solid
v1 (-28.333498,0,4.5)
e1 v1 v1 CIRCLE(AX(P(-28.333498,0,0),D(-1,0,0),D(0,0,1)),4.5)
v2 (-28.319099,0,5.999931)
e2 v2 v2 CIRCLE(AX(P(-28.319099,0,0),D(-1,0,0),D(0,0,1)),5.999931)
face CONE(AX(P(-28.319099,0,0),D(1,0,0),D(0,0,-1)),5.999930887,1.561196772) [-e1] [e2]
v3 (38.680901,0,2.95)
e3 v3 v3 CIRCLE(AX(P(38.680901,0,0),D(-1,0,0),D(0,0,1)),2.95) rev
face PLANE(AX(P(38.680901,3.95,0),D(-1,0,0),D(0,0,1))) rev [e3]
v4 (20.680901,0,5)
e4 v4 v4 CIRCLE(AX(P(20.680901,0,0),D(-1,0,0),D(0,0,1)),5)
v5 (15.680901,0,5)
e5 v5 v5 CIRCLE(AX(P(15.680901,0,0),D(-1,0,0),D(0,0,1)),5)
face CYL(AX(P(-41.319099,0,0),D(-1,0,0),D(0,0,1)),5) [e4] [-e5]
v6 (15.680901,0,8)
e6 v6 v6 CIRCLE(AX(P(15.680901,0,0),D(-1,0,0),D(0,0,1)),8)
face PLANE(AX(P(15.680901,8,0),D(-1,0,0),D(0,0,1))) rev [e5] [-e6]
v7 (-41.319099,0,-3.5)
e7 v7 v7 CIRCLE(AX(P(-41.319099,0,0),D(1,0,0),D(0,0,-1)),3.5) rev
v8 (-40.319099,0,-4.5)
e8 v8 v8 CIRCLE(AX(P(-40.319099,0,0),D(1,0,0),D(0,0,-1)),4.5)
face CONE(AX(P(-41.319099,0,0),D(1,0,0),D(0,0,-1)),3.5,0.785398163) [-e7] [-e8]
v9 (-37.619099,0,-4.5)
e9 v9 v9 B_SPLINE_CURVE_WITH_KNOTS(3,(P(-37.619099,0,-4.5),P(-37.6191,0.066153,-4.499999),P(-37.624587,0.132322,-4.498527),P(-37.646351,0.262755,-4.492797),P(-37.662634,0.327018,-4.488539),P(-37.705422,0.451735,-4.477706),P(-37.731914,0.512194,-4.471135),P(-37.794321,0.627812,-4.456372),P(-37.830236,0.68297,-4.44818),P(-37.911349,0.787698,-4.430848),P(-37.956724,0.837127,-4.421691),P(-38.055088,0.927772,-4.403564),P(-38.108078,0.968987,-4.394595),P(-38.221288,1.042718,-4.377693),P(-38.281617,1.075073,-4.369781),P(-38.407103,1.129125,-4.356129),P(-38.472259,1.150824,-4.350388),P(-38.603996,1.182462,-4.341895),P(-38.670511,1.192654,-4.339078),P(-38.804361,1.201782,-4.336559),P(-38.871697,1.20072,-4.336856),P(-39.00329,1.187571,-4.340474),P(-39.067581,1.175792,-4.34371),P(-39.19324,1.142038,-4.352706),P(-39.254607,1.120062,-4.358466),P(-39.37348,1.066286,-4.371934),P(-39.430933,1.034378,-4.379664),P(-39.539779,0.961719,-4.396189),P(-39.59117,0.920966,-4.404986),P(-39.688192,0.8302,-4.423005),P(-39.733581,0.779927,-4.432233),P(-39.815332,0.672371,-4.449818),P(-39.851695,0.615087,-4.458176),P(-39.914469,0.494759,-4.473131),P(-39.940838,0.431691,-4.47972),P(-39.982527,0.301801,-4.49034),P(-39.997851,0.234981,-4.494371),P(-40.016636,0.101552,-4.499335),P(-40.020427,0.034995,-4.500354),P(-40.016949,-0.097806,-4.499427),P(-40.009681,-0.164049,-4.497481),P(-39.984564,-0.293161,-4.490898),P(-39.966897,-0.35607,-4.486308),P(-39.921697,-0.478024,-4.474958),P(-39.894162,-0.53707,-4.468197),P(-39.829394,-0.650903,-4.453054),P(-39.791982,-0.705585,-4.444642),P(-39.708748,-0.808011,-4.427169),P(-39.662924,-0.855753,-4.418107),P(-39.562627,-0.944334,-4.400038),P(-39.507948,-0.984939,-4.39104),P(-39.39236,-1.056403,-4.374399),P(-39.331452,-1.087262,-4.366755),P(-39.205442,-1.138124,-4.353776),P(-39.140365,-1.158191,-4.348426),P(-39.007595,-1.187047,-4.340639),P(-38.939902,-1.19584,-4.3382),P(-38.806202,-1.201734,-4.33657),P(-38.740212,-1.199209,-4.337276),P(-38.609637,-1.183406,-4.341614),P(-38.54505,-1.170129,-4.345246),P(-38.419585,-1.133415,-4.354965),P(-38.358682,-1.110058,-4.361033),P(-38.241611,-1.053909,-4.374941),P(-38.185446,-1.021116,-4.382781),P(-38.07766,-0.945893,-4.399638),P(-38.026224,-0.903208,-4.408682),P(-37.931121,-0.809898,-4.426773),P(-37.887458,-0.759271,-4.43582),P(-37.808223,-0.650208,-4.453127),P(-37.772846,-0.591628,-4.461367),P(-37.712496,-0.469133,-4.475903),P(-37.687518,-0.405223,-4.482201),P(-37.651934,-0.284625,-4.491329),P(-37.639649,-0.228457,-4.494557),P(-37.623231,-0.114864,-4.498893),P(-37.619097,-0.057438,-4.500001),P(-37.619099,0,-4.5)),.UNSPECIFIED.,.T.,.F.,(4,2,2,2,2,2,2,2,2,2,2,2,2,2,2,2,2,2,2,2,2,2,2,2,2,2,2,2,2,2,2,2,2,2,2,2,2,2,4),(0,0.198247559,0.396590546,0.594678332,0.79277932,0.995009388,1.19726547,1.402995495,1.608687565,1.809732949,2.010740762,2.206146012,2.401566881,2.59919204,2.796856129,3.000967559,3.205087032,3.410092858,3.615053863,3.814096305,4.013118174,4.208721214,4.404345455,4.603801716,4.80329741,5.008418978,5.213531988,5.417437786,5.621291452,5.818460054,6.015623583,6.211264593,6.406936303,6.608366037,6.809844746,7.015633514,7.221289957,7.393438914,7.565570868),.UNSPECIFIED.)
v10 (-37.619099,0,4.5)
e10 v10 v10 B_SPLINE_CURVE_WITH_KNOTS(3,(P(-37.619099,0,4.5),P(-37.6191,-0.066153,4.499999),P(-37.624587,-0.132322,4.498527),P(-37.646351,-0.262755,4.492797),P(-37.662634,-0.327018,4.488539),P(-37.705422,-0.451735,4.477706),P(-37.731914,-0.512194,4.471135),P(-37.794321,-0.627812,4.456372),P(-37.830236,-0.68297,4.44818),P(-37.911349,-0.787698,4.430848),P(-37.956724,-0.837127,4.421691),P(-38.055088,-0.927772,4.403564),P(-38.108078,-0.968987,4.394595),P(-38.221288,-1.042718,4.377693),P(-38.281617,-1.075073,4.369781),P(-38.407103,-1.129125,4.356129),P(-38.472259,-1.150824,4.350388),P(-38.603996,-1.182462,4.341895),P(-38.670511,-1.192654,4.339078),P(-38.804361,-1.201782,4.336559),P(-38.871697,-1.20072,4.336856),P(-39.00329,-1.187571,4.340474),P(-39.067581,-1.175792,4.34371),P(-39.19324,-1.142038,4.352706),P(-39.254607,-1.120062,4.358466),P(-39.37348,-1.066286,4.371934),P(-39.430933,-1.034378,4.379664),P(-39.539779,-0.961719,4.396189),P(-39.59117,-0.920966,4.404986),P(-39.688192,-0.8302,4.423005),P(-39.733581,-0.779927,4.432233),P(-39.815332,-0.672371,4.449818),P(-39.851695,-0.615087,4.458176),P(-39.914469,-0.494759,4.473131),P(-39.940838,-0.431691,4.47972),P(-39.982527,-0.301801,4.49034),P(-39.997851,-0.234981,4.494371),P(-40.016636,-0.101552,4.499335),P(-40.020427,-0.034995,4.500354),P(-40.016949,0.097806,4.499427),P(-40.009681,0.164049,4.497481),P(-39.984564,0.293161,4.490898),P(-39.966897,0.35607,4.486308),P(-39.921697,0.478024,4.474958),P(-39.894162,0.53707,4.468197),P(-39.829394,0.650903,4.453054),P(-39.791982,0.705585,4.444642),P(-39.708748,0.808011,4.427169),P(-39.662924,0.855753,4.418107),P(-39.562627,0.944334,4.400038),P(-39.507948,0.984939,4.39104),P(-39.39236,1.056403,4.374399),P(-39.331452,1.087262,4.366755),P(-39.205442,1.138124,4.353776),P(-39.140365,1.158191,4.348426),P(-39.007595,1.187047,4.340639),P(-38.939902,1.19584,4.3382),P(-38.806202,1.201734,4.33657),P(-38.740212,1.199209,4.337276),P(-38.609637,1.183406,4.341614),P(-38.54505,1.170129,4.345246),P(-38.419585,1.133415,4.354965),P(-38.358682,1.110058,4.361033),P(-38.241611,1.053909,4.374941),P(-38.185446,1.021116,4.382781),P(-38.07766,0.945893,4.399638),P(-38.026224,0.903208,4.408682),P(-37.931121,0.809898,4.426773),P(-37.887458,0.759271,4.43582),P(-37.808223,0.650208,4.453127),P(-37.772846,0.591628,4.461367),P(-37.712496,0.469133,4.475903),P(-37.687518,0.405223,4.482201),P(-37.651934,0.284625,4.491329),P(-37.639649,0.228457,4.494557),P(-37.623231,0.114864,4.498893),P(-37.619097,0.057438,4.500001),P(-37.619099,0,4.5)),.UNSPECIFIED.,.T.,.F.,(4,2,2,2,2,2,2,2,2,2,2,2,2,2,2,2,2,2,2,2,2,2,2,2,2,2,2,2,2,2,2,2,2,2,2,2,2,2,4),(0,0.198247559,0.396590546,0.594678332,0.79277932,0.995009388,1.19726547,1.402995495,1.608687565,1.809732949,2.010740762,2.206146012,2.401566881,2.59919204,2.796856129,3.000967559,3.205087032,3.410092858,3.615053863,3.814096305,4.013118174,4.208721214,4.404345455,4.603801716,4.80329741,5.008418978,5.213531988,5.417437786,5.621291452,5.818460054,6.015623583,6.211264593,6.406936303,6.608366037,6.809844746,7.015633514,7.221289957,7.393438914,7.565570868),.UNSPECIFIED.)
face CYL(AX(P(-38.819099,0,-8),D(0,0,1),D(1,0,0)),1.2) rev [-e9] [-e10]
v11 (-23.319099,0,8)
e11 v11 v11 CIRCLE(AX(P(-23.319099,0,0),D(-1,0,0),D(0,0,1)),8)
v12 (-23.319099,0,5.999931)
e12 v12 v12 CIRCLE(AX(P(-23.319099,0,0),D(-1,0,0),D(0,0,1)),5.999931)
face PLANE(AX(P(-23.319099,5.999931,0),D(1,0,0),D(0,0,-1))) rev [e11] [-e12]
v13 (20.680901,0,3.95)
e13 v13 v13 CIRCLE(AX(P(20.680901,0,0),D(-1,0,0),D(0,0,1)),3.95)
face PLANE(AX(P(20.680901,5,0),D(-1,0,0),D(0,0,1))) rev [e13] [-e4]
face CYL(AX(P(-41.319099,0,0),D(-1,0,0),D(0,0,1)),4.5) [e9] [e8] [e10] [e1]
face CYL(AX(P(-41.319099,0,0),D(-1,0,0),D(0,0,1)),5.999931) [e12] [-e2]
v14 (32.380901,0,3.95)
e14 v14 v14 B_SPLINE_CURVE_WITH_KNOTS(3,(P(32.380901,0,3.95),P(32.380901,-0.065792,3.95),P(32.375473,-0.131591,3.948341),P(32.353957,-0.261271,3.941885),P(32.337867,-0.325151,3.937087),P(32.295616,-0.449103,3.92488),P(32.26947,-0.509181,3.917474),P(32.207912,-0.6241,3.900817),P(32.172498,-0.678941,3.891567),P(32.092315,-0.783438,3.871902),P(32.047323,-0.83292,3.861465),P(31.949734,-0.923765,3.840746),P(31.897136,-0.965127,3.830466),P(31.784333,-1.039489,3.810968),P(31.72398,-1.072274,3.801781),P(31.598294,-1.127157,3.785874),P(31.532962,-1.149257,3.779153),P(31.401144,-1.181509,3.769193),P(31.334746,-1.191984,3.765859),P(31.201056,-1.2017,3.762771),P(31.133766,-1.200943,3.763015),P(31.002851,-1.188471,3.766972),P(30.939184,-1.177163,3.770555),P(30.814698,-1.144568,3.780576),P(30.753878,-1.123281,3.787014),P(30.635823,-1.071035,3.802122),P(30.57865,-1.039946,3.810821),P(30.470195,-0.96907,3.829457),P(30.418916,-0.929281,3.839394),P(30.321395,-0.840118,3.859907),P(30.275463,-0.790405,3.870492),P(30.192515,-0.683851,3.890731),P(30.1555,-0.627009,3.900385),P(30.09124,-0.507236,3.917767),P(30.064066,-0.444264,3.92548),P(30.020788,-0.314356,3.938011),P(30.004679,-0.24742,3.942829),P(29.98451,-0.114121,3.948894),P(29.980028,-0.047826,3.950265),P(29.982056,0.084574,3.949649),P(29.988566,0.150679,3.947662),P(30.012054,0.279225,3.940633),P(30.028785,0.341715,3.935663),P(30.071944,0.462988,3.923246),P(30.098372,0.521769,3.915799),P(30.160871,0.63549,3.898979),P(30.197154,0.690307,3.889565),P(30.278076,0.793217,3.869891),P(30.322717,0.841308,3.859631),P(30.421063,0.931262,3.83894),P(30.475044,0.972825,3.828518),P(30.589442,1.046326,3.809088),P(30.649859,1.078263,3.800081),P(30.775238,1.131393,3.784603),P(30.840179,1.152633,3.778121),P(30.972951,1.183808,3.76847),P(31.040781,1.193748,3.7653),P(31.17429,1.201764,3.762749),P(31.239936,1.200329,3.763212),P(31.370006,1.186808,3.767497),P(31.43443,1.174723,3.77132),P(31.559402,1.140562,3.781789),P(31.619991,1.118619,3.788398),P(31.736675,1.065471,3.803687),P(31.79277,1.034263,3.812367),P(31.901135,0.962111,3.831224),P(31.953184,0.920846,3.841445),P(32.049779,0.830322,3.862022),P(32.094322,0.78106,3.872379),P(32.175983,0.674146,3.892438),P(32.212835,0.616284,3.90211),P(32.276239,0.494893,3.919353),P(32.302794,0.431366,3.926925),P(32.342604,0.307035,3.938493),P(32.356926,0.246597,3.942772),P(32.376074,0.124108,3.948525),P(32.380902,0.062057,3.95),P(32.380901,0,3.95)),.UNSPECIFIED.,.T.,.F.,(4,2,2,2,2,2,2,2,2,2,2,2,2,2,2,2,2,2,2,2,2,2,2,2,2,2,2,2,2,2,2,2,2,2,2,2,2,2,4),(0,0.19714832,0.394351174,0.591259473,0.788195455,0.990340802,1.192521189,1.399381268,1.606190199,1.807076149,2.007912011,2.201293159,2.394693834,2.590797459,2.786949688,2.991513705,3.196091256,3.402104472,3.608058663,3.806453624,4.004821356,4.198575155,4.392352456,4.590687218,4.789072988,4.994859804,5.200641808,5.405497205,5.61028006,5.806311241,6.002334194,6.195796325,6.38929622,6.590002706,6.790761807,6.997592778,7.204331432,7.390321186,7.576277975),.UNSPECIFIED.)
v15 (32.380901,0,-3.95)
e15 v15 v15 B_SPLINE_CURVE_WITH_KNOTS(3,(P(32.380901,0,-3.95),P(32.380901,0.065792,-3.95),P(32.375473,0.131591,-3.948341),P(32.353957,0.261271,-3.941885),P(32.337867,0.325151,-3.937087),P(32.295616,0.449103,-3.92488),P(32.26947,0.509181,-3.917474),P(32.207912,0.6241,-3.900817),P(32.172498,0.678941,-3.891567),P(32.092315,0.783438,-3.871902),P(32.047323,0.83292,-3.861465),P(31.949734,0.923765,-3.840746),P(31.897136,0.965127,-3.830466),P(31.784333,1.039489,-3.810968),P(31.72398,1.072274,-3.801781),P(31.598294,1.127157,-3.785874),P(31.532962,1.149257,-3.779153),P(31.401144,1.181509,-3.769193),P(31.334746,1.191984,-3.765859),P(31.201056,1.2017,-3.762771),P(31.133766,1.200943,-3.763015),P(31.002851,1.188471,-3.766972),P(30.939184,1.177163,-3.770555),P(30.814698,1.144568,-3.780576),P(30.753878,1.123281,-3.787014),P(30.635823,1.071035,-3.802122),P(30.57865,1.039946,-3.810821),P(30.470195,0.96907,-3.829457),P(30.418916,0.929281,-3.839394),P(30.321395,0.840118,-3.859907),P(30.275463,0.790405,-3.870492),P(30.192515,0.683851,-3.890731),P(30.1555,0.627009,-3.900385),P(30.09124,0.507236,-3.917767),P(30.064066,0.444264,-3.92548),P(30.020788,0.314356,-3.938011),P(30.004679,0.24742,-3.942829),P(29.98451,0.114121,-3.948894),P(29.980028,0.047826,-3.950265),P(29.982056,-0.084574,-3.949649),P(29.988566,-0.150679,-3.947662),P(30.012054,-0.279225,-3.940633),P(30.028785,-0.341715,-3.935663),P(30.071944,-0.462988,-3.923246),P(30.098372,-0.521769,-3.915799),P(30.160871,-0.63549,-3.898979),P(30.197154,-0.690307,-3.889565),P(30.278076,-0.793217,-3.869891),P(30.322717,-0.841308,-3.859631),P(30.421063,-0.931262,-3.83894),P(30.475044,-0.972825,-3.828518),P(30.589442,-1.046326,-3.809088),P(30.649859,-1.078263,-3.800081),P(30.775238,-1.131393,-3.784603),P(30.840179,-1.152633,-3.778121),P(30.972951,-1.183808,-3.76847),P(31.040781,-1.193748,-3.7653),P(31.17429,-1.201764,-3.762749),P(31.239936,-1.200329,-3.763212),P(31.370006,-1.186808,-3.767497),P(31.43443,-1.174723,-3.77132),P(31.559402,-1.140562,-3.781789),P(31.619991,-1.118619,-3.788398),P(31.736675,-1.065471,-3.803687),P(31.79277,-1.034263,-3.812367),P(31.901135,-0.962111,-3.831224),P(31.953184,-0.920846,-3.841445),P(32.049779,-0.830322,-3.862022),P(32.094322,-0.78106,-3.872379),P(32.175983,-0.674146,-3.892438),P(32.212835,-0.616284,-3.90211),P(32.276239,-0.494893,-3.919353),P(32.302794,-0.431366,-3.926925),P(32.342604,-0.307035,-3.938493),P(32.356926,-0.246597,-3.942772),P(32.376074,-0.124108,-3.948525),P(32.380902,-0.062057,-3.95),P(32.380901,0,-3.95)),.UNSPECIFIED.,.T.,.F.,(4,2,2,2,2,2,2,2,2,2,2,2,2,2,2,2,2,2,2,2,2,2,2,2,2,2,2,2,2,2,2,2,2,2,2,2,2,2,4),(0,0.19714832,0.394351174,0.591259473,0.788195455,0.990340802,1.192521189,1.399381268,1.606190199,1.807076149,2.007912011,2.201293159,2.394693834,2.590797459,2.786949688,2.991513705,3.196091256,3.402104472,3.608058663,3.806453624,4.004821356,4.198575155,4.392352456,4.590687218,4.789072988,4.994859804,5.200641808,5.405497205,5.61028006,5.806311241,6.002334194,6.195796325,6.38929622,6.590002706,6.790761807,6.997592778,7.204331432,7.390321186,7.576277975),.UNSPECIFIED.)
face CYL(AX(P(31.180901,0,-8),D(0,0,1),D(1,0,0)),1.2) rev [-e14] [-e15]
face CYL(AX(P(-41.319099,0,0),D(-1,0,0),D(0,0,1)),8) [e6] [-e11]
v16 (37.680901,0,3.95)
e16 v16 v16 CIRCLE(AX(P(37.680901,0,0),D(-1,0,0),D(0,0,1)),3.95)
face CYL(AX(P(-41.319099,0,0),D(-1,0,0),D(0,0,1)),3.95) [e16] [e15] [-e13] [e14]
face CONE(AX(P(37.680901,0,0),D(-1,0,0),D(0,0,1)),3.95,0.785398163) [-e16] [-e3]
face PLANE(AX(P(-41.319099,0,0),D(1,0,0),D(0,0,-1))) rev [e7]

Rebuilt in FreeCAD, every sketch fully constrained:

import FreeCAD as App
import Part
import Sketcher
from FreeCAD import Vector
Q = App.Units.Quantity


def edges_at(feature, points):
    """Names of the edges that pass closest to the given points."""
    edges = feature.Shape.Edges
    near = lambda p: min(range(len(edges)), key=lambda i: edges[i].distToShape(Part.Vertex(*p))[0])
    return sorted({f"Edge{near(p) + 1}" for p in points})


def add_polygon(sketch, points):
    """Adds a closed chain of lines whose ends are joined by coincident constraints."""
    first, n = sketch.GeometryCount, len(points)
    for a, b in zip(points, points[1:] + points[:1]):
        sketch.addGeometry(Part.LineSegment(App.Vector(*a, 0), App.Vector(*b, 0)), False)
    for i in range(n):
        sketch.addConstraint(Sketcher.Constraint("Coincident", first + i, 2, first + (i + 1) % n, 1))

doc = App.newDocument("Part")
params = doc.addObject("Spreadsheet::Sheet", "Params")
for row, (alias, value) in enumerate([
    ("sketch1_width", "80 mm"),
    ("sketch1_width2", "18 mm"),
    ("sketch1_width3", "5 mm"),
    ("sketch1_width4", "39 mm"),
    ("sketch1_height", "3 mm"),
    ("revolution_angle", "360 deg"),
    ("chamfer_size", "1 mm"),
    ("sketch2_diameter", "2.4 mm"),
], start=1):
    params.set(f"A{row}", alias)
    params.set(f"B{row}", "=" + value)
    params.setAlias(f"B{row}", alias)

body = doc.addObject("PartDesign::Body", "Body")

sketch1 = body.newObject("Sketcher::SketchObject", "Sketch")
sketch1.AttachmentSupport = (doc.getObject("XY_Plane"), [""])
sketch1.MapMode = "FlatFace"
add_polygon(sketch1, [(-41.3, 4.5), (-41.3, 0), (38.7, 0), (38.7, 4), (20.7, 4), (20.7, 5), (15.7, 5), (15.7, 8), (-23.3, 8), (-23.3, 6), (-28.3, 6), (-28.3, 4.5)])
sketch1.addConstraint([
    Sketcher.Constraint("Vertical", 0),
    Sketcher.Constraint("Horizontal", 1),
    Sketcher.Constraint("Vertical", 2),
    Sketcher.Constraint("Horizontal", 3),
    Sketcher.Constraint("Vertical", 4),
    Sketcher.Constraint("Horizontal", 5),
    Sketcher.Constraint("Vertical", 6),
    Sketcher.Constraint("Horizontal", 7),
    Sketcher.Constraint("Vertical", 8),
    Sketcher.Constraint("Horizontal", 9),
    Sketcher.Constraint("Horizontal", 11),
    Sketcher.Constraint("PointOnObject", 0, 2, -1),
    Sketcher.Constraint("Equal", 5, 9),
    Sketcher.Constraint("DistanceX", 1, 1, 1, 2, Q("80 mm")),
    Sketcher.Constraint("DistanceX", 3, 2, 3, 1, Q("18 mm")),
    Sketcher.Constraint("DistanceX", 5, 2, 5, 1, Q("5 mm")),
    Sketcher.Constraint("DistanceX", 7, 2, 7, 1, Q("39 mm")),
    Sketcher.Constraint("DistanceY", 6, 1, 6, 2, Q("3 mm")),
    Sketcher.Constraint("DistanceY", 0, 2, 0, 1, Q("4.5 mm")),
    Sketcher.Constraint("DistanceY", -1, 1, 4, 2, Q("5 mm")),
    Sketcher.Constraint("Distance", 10, Q("1.5 mm")),
    Sketcher.Constraint("DistanceY", 2, 1, 2, 2, Q("3.95 mm")),
    Sketcher.Constraint("Angle", 10, Q("-90.550014 deg")),
    Sketcher.Constraint("DistanceX", 0, 2, -1, 1, Q("41.319099 mm")),
])
sketch1.setExpression("Constraints[25]", "Params.sketch1_width")
sketch1.setExpression("Constraints[26]", "Params.sketch1_width2")
sketch1.setExpression("Constraints[27]", "Params.sketch1_width3")
sketch1.setExpression("Constraints[28]", "Params.sketch1_width4")
sketch1.setExpression("Constraints[29]", "Params.sketch1_height")
revolution = body.newObject("PartDesign::Revolution", "Revolution")
revolution.Profile = sketch1
revolution.ReferenceAxis = (sketch1, ["H_Axis"])
revolution.setExpression("Angle", "Params.revolution_angle")
doc.recompute()

chamfer = body.newObject("PartDesign::Chamfer", "Chamfer")
chamfer.Base = (revolution, edges_at(revolution, [(-41.319, -4.5, 0), (38.681, -3.95, 0)]))
chamfer.setExpression("Size", "Params.chamfer_size")

sketch2 = body.newObject("Sketcher::SketchObject", "Sketch001")
sketch2.AttachmentSupport = (doc.getObject("XY_Plane"), [""])
sketch2.MapMode = "FlatFace"
sketch2.addGeometry([
    Part.Circle(Vector(-38.8, 0, 0), Vector(0, 0, 1), 1.2),
    Part.Circle(Vector(31.2, 0, 0), Vector(0, 0, 1), 1.2),
], False)
sketch2.addConstraint([
    Sketcher.Constraint("Equal", 0, 1),
    Sketcher.Constraint("PointOnObject", 0, 3, -1),
    Sketcher.Constraint("PointOnObject", 1, 3, -1),
    Sketcher.Constraint("Diameter", 0, Q("2.4 mm")),
    Sketcher.Constraint("DistanceX", 0, 3, 1, 3, Q("70 mm")),
    Sketcher.Constraint("DistanceX", 0, 3, -1, 1, Q("38.819099 mm")),
])
sketch2.setExpression("Constraints[3]", "Params.sketch2_diameter")
pocket1 = body.newObject("PartDesign::Pocket", "Pocket")
pocket1.Profile = sketch2
pocket1.Type = "ThroughAll"
pocket1.Midplane = True

doc.recompute()
